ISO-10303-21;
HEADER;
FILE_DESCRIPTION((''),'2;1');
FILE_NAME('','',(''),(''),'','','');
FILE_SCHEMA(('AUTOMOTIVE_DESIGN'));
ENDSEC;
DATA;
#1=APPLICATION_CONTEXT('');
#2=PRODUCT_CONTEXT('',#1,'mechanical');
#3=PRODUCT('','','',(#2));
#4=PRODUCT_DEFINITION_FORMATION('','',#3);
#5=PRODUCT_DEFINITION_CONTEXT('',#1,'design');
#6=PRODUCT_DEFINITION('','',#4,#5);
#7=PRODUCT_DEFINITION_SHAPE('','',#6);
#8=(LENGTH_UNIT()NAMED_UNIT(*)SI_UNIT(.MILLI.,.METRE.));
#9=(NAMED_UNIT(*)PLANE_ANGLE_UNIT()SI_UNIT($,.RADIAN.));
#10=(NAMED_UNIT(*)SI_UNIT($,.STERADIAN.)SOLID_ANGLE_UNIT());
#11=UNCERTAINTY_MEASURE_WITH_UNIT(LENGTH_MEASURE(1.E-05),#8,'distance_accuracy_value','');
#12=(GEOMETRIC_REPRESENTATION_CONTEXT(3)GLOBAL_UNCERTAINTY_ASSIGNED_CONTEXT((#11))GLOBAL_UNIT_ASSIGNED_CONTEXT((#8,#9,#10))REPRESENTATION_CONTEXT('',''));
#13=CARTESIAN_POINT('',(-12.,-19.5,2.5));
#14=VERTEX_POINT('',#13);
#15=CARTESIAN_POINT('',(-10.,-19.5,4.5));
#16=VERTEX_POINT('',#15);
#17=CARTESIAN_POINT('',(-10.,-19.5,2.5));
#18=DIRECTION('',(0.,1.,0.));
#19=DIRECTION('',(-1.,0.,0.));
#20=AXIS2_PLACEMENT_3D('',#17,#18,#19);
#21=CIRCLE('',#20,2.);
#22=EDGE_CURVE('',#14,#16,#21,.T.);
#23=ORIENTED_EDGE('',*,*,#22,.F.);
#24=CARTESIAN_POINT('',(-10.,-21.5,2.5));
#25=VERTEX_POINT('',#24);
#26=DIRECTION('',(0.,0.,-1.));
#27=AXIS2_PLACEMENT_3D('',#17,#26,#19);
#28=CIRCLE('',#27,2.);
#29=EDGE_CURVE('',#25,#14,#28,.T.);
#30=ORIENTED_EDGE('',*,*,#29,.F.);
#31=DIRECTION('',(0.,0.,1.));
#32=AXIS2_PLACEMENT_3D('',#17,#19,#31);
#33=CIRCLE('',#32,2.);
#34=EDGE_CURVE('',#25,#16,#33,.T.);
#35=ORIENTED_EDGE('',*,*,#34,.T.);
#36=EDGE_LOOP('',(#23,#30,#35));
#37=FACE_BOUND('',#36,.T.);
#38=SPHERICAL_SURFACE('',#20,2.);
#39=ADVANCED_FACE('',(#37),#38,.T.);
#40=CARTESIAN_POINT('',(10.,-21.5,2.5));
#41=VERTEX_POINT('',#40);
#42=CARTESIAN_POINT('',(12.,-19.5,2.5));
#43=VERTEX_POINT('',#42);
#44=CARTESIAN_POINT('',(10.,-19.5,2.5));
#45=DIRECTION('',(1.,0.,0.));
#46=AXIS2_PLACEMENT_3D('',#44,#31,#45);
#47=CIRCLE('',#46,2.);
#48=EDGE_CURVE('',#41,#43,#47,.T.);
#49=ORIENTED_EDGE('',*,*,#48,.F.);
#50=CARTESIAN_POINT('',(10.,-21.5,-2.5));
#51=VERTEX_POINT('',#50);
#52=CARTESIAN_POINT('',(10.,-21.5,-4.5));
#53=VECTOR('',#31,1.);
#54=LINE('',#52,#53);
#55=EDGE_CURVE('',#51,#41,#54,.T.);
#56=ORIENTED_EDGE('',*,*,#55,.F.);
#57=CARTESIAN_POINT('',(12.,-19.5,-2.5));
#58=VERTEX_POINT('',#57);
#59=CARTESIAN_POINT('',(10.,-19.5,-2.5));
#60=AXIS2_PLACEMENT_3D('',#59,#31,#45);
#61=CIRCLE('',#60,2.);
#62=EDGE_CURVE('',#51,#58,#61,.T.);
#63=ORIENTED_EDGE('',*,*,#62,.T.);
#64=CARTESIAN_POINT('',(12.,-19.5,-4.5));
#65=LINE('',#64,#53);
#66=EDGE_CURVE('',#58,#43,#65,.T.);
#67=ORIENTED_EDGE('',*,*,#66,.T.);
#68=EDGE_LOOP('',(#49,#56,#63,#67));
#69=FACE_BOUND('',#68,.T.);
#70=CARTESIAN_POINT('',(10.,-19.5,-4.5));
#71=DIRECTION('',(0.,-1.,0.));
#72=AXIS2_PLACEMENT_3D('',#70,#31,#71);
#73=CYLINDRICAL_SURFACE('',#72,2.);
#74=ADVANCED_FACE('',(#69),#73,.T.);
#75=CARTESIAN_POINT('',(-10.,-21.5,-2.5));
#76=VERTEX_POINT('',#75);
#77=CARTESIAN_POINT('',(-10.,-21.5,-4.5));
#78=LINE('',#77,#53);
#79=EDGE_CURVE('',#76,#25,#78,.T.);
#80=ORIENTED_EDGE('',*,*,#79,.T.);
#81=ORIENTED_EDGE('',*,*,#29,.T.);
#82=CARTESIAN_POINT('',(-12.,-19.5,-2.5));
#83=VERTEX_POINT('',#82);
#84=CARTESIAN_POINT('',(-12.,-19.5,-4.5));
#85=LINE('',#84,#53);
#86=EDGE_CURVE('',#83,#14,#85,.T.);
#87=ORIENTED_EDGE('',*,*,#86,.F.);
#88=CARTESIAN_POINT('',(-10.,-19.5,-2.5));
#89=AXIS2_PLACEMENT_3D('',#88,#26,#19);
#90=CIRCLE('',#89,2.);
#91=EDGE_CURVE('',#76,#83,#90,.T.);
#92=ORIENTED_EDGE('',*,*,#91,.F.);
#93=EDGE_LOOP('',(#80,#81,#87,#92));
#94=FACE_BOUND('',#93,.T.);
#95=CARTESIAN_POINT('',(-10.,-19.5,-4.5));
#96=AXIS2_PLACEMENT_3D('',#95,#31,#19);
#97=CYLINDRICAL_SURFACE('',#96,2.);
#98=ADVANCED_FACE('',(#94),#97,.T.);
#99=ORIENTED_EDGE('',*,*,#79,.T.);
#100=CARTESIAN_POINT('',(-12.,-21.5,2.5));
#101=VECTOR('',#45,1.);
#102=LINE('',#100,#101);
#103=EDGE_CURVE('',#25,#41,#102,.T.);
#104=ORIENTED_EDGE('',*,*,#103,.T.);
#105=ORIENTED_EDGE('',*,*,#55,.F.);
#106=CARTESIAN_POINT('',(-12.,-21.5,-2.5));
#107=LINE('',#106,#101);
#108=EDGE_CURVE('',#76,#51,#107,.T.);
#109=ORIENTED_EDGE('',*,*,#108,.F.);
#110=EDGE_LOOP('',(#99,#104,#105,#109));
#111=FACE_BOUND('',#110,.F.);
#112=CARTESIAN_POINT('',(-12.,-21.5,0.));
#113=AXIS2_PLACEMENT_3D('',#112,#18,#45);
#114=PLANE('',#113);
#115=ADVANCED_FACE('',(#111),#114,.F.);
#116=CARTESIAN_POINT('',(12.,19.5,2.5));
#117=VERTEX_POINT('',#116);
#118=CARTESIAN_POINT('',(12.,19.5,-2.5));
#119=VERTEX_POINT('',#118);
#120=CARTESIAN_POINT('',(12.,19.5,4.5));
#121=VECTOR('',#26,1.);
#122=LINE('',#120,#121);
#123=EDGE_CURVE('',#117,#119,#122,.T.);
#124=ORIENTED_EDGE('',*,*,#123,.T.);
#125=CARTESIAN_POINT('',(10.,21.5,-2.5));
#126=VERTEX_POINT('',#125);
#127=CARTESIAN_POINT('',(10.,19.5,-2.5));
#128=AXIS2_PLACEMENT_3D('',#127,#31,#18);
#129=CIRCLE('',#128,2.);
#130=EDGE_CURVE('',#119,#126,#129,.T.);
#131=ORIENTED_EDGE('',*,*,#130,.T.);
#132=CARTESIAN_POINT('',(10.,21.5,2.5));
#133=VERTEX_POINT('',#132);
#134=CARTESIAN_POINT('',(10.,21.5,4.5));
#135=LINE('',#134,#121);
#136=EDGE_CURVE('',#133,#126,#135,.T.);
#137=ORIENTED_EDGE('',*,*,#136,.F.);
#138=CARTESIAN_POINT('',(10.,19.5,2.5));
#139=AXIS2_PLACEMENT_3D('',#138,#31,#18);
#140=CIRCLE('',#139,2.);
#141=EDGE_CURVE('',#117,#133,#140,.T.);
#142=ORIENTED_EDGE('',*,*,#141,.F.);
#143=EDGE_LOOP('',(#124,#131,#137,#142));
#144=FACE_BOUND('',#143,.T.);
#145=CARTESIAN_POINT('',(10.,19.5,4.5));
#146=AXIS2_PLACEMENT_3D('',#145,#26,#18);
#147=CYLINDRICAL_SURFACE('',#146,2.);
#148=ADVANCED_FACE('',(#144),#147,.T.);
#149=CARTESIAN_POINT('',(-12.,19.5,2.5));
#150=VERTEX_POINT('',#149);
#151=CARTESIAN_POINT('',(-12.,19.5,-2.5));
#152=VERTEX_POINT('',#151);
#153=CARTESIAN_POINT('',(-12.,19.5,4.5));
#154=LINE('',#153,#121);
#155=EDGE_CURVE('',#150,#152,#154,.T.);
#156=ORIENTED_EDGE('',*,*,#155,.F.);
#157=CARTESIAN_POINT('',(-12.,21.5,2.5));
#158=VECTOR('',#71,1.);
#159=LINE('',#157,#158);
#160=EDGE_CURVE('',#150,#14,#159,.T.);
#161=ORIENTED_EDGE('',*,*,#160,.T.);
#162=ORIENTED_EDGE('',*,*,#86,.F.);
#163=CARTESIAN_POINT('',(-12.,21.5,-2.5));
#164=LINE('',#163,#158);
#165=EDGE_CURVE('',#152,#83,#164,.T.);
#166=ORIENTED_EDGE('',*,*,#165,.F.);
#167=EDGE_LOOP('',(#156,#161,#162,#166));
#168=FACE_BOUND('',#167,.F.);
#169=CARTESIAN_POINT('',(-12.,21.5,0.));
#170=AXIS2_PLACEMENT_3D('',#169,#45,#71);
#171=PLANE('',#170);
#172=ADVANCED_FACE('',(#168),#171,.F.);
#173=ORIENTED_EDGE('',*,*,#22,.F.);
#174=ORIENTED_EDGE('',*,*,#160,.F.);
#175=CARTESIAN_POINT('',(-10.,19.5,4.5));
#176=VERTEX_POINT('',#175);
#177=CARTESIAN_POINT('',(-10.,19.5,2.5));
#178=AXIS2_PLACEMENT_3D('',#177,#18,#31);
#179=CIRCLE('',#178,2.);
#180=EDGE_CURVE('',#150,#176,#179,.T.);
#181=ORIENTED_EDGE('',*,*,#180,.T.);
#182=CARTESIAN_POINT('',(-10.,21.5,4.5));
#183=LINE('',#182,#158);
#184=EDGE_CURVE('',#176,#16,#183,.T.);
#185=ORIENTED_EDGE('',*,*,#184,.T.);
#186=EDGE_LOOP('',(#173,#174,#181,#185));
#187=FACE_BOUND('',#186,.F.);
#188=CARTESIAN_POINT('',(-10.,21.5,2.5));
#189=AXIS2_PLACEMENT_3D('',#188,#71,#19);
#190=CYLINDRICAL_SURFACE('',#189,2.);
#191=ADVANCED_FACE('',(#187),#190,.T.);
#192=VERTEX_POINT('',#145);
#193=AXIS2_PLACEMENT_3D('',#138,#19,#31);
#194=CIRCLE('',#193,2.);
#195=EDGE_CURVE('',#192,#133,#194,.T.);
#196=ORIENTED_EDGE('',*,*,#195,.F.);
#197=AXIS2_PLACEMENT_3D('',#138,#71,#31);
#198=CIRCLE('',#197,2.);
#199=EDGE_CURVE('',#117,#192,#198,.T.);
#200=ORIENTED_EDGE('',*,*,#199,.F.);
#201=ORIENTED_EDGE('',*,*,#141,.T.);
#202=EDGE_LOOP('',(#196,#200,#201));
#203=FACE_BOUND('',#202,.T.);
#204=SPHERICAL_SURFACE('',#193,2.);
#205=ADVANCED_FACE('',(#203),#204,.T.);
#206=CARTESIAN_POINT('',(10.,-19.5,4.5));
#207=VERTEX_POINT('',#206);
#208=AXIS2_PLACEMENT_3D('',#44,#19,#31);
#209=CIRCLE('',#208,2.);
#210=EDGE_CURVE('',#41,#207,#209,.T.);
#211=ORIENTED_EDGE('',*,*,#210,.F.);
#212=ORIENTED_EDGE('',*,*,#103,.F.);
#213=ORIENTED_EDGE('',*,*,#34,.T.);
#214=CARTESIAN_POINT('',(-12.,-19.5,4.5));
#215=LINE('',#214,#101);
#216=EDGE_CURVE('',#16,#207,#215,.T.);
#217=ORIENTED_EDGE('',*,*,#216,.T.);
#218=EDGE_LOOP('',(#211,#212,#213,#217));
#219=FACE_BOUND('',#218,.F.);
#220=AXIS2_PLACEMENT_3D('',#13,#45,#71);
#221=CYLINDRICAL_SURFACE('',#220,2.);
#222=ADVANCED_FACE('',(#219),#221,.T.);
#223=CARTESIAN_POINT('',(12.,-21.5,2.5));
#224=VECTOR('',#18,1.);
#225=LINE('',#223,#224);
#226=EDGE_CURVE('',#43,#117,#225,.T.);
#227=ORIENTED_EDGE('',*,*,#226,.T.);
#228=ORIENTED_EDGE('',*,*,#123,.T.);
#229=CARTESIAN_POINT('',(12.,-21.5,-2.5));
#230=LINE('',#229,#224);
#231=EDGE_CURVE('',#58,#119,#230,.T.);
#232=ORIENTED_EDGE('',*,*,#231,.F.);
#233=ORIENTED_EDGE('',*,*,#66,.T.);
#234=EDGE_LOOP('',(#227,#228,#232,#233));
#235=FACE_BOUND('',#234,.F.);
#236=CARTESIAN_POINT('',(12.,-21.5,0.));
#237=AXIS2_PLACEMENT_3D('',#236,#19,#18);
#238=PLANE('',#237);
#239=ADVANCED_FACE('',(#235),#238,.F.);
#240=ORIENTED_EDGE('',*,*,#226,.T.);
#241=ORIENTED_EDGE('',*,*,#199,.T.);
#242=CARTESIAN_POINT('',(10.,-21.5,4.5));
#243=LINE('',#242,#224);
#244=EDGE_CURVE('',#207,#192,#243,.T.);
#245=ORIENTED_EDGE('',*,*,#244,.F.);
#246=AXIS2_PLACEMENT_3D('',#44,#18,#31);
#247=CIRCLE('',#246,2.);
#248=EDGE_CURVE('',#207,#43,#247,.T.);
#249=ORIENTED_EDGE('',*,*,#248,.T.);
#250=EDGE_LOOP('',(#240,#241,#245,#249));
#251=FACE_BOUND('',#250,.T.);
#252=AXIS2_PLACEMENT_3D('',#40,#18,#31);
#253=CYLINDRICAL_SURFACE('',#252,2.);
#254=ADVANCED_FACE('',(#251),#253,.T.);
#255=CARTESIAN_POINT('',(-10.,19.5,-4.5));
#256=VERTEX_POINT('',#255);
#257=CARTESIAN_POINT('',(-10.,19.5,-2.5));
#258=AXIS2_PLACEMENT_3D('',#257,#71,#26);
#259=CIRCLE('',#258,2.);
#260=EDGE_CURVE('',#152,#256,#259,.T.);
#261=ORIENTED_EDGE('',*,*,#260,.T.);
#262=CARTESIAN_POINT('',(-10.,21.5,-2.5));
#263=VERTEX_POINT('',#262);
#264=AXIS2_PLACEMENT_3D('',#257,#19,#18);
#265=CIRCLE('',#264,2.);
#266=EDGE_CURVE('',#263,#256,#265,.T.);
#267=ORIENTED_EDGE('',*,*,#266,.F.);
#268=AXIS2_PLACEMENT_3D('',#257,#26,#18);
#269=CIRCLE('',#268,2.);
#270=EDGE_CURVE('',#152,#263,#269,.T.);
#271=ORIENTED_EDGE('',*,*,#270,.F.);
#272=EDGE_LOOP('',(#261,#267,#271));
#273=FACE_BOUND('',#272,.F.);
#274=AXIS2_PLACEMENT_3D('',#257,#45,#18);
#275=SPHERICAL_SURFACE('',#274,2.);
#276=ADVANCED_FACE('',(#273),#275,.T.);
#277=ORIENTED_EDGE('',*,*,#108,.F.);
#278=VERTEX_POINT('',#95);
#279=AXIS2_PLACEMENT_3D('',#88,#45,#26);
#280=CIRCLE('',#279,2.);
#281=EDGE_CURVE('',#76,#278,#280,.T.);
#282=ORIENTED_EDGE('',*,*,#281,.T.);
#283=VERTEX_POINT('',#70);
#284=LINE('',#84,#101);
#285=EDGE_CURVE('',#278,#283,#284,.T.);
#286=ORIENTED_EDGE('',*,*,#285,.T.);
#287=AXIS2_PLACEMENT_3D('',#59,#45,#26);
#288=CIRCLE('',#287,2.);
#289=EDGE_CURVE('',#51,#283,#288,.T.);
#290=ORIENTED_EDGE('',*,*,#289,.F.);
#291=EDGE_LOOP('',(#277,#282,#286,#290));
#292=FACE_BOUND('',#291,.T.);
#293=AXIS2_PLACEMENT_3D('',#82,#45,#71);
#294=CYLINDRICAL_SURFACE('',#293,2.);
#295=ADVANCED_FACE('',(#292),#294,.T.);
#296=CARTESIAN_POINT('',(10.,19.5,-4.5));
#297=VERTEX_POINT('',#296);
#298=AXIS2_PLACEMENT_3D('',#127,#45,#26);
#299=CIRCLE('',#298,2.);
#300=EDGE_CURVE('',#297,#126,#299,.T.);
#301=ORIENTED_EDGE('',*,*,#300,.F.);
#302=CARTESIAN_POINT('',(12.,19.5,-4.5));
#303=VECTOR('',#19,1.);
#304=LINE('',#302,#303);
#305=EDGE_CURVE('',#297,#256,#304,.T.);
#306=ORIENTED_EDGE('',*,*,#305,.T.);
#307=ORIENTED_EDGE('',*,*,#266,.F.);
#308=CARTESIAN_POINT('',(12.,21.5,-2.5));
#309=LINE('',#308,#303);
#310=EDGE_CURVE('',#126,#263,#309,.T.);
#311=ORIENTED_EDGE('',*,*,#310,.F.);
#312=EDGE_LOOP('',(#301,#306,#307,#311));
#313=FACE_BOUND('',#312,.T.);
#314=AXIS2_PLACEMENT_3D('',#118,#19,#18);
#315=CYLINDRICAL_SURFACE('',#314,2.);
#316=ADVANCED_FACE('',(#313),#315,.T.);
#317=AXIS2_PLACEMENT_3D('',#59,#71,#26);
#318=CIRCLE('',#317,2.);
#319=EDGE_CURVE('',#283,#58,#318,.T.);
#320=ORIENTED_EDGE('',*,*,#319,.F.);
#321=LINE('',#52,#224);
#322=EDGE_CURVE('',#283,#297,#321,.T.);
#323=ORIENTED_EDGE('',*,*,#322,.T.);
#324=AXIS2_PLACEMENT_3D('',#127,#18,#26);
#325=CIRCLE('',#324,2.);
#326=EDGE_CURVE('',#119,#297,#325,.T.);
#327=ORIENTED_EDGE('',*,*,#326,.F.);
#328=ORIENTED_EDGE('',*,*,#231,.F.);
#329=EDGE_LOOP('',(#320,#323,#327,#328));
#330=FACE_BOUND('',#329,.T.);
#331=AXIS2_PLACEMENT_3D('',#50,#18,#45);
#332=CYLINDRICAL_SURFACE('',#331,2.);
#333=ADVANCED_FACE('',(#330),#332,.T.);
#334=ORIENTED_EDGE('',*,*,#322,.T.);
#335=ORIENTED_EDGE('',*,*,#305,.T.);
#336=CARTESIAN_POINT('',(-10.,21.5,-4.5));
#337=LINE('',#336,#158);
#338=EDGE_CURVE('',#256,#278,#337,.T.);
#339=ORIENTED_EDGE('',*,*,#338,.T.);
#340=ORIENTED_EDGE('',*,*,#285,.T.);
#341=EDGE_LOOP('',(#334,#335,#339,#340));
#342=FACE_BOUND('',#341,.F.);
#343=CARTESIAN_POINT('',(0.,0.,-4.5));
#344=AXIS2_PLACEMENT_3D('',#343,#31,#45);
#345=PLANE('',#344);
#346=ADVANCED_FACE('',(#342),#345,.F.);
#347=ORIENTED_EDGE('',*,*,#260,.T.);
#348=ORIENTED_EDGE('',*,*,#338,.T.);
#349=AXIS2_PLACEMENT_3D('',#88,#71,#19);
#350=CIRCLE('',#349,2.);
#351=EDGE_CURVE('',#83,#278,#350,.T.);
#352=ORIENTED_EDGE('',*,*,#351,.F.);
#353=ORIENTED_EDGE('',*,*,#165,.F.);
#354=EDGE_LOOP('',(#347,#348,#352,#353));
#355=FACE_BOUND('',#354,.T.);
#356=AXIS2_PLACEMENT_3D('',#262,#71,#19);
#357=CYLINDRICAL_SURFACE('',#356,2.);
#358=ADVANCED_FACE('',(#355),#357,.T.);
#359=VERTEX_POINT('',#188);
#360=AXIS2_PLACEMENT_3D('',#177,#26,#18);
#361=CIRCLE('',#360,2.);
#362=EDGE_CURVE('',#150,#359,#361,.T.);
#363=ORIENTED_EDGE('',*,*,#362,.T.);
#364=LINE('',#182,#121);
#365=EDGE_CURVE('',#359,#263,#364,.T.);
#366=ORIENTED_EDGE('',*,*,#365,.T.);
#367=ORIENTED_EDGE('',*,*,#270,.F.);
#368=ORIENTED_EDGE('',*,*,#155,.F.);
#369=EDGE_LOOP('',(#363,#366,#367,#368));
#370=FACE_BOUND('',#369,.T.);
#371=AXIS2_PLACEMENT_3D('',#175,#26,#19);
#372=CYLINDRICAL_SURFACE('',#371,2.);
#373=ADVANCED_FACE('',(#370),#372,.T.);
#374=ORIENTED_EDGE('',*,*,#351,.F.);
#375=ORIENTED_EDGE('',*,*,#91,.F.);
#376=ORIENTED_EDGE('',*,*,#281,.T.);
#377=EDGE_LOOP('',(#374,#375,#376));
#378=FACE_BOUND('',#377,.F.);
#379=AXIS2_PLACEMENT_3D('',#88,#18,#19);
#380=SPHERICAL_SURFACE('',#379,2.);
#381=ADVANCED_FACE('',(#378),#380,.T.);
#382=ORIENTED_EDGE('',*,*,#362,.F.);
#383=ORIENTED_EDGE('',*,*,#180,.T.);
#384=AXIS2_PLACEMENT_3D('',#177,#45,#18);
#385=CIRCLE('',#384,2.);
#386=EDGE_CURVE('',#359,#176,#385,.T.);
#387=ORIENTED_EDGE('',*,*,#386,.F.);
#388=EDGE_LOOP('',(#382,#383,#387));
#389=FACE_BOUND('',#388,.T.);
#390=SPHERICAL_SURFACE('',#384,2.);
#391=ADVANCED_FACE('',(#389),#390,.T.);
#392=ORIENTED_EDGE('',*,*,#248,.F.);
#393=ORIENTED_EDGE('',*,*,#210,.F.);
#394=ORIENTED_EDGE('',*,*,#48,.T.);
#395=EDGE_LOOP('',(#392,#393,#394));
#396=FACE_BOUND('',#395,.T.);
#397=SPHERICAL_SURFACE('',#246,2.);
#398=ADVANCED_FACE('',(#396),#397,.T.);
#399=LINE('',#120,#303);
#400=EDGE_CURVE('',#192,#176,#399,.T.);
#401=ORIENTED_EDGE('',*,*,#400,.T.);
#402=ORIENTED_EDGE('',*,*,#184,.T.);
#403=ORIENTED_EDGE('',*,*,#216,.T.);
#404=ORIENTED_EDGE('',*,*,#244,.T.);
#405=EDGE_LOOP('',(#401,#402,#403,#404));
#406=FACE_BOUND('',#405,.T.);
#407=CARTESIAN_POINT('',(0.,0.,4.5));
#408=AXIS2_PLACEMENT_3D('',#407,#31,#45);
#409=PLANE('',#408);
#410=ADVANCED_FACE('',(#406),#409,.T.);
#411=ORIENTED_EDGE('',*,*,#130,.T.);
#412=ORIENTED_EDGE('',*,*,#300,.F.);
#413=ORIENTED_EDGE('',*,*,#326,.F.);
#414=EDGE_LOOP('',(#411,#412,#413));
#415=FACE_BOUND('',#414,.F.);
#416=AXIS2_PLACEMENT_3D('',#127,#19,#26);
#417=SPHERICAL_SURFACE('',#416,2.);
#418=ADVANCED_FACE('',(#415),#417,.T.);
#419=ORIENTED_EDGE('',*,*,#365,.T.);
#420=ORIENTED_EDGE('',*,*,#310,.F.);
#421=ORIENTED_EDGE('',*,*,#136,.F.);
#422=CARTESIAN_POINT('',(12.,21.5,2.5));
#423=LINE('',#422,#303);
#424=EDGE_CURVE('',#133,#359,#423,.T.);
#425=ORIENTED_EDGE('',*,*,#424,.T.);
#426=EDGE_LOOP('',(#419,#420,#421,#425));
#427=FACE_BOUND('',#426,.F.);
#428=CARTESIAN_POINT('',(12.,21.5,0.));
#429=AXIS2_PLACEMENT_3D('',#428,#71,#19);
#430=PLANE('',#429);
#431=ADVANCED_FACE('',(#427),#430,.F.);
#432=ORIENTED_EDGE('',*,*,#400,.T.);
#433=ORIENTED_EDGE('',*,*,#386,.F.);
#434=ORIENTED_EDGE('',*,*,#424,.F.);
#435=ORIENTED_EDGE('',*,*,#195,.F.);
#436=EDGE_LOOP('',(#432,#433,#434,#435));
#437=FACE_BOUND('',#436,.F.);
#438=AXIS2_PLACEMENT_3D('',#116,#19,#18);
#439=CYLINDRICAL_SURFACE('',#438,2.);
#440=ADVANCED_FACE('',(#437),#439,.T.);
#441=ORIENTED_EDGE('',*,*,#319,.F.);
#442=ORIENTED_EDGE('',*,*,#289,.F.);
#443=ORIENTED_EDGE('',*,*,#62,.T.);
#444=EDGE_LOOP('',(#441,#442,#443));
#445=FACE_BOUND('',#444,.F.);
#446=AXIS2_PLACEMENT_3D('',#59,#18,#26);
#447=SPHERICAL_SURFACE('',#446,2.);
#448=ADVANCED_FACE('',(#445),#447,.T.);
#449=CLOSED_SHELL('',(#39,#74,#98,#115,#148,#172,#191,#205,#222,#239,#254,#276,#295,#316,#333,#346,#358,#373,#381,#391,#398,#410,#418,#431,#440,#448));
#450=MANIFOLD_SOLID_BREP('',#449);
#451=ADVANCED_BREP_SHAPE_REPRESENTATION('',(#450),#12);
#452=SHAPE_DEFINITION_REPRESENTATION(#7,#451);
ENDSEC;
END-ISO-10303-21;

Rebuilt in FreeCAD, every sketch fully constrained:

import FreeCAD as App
import Part
import Sketcher
from FreeCAD import Vector
Q = App.Units.Quantity


def add_polygon(sketch, points):
    """Adds a closed chain of lines whose ends are joined by coincident constraints."""
    first, n = sketch.GeometryCount, len(points)
    for a, b in zip(points, points[1:] + points[:1]):
        sketch.addGeometry(Part.LineSegment(App.Vector(*a, 0), App.Vector(*b, 0)), False)
    for i in range(n):
        sketch.addConstraint(Sketcher.Constraint("Coincident", first + i, 2, first + (i + 1) % n, 1))

doc = App.newDocument("Part")
body = doc.addObject("PartDesign::Body", "Body")

sketch1 = body.newObject("Sketcher::SketchObject", "Sketch")
sketch1.AttachmentSupport = (doc.getObject("XY_Plane"), [""])
sketch1.MapMode = "FlatFace"
add_polygon(sketch1, [(-12, 22), (-12, -22), (12, -22), (12, 22)])
sketch1.addConstraint(Sketcher.Constraint("Vertical", 0))
sketch1.addConstraint(Sketcher.Constraint("Horizontal", 1))
sketch1.addConstraint(Sketcher.Constraint("Vertical", 2))
sketch1.addConstraint(Sketcher.Constraint("Horizontal", 3))
sketch1.addConstraint(Sketcher.Constraint("Symmetric", 0, 2, 2, 2, -1, 1))
sketch1.addConstraint(Sketcher.Constraint("DistanceX", 1, 1, 1, 2, Q("24 mm")))
sketch1.addConstraint(Sketcher.Constraint("DistanceY", 0, 2, 0, 1, Q("43 mm")))
pad1 = body.newObject("PartDesign::Pad", "Pad")
pad1.Profile = sketch1
pad1.Length = 9
pad1.Midplane = True
doc.recompute()

fillet = body.newObject("PartDesign::Fillet", "Fillet")
fillet.Base = (pad1, ["Edge1"])
fillet.UseAllEdges = True
fillet.Radius = 2

doc.recompute()
